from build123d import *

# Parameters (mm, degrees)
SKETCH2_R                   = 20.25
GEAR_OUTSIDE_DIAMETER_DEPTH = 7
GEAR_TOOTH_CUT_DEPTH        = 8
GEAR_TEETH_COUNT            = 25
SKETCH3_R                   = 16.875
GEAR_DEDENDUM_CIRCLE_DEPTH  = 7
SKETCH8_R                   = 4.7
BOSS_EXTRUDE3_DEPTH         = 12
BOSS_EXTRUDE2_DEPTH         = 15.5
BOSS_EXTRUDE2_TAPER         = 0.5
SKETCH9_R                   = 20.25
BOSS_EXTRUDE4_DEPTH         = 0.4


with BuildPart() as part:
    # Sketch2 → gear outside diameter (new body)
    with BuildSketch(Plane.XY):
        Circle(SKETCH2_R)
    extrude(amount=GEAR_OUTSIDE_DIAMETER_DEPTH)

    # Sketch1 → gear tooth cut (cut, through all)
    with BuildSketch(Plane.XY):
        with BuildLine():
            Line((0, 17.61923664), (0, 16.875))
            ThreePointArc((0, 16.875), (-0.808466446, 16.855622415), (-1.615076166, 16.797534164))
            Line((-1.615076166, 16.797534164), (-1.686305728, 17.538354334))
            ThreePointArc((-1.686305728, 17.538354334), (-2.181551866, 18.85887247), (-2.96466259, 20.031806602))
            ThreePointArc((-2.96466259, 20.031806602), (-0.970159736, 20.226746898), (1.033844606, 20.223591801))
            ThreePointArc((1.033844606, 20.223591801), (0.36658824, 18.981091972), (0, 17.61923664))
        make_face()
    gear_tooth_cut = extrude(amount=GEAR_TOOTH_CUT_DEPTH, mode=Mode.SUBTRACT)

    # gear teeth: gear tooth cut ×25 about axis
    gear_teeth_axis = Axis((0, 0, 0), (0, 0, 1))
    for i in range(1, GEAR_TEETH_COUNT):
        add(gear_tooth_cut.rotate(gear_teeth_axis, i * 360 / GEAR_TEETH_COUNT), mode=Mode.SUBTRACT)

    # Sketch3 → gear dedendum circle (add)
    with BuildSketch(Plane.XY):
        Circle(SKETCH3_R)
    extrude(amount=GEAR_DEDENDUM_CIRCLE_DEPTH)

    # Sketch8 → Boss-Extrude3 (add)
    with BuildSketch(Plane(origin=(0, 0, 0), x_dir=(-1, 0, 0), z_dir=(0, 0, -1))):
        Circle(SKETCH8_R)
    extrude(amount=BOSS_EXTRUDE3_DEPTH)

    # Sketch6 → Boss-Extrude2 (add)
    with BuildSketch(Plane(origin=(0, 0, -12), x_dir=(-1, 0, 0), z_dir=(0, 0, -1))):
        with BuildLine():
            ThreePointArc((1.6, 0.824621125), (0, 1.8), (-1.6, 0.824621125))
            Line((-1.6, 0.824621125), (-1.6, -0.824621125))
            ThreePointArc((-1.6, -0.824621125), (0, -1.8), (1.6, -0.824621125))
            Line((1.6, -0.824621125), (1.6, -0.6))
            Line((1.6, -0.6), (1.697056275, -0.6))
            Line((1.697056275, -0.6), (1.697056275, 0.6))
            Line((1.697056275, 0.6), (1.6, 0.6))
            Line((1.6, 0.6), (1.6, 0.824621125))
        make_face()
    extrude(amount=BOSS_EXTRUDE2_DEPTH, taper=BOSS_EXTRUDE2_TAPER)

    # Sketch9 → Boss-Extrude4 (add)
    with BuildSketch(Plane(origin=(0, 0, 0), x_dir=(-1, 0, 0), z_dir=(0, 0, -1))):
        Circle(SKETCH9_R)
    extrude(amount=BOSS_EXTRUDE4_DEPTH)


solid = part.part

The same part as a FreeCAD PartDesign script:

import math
import FreeCAD as App
import Part
import Sketcher
from FreeCAD import Vector

doc = App.newDocument("Part")
body = doc.addObject("PartDesign::Body", "Body")

sketch1 = body.newObject("Sketcher::SketchObject", "Sketch")
sketch1.AttachmentSupport = (doc.getObject("XY_Plane"), [""])
sketch1.MapMode = "FlatFace"
sketch1.addGeometry(Part.Circle(Vector(0, 0, 0), Vector(0, 0, 1), 20), False)
sketch1.addConstraint([
    Sketcher.Constraint("Coincident", 0, 3, -1, 1),
    Sketcher.Constraint("Diameter", 0, 40.5),
])
pad1 = body.newObject("PartDesign::Pad", "Pad")
pad1.Profile = sketch1
pad1.Length = 7

sketch2 = body.newObject("Sketcher::SketchObject", "Sketch001")
sketch2.AttachmentSupport = (doc.getObject("XY_Plane"), [""])
sketch2.MapMode = "FlatFace"
sketch2.addGeometry([
    Part.LineSegment(Vector(0, 16.9, 0), Vector(0, 17.6, 0)),
    Part.ArcOfCircle(Part.Circle(Vector(6.1, 16.7, 0), Vector(0, 0, 1), 6.1), math.radians(145), math.radians(172)),
    Part.ArcOfCircle(Part.Circle(Vector(0, 0, 0), Vector(0, 0, 1), 20.3), math.radians(87.07), math.radians(98.42)),
    Part.ArcOfCircle(Part.Circle(Vector(-7.7, 16.1, 0), Vector(0, 0, 1), 6.1), math.radians(14), math.radians(40)),
    Part.LineSegment(Vector(-1.7, 17.5, 0), Vector(-1.6, 16.8, 0)),
    Part.ArcOfCircle(Part.Circle(Vector(0, 0, 0), Vector(0, 0, 1), 16.9), math.radians(90), math.radians(95.49)),
], False)
sketch2.addConstraint([
    Sketcher.Constraint("Coincident", 0, 2, 1, 2),
    Sketcher.Constraint("Coincident", 1, 1, 2, 1),
    Sketcher.Constraint("Coincident", 2, 2, 3, 2),
    Sketcher.Constraint("Coincident", 3, 1, 4, 1),
    Sketcher.Constraint("Coincident", 4, 2, 5, 2),
    Sketcher.Constraint("Coincident", 5, 1, 0, 1),
    Sketcher.Constraint("Vertical", 0),
    Sketcher.Constraint("Coincident", 2, 3, -1, 1),
    Sketcher.Constraint("Coincident", 5, 3, -1, 1),
    Sketcher.Constraint("Equal", 1, 3),
    Sketcher.Constraint("PointOnObject", 0, 2, -2),
    Sketcher.Constraint("Radius", 2, 20.25),
    Sketcher.Constraint("Radius", 5, 16.875),
    Sketcher.Constraint("Radius", 1, 6.148644),
    Sketcher.Constraint("DistanceY", 1, 3, 1, 1, 3.511102),
    Sketcher.Constraint("DistanceY", 0, 1, 0, 2, 0.744237),
    Sketcher.Constraint("DistanceY", -1, 1, 3, 3, 16.053729),
    Sketcher.Constraint("DistanceX", 3, 3, 1, 3, 13.734439),
    Sketcher.Constraint("DistanceX", 3, 1, 1, 1, 2.72015),
    Sketcher.Constraint("DistanceX", 3, 1, 4, 2, 0.07123),
])
pocket1 = body.newObject("PartDesign::Pocket", "Pocket")
pocket1.Profile = sketch2
pocket1.Type = "ThroughAll"
pocket1.Reversed = True
doc.recompute()

polarpattern = body.newObject("PartDesign::PolarPattern", "PolarPattern")
polarpattern.Originals = [pocket1]
polarpattern.Axis = (doc.getObject("Z_Axis"), [""])
polarpattern.Angle = 360
polarpattern.Occurrences = 25
body.Tip = polarpattern

sketch3 = body.newObject("Sketcher::SketchObject", "Sketch002")
sketch3.AttachmentSupport = (doc.getObject("XY_Plane"), [""])
sketch3.MapMode = "FlatFace"
sketch3.addGeometry(Part.Circle(Vector(0, 0, 0), Vector(0, 0, 1), 17), False)
sketch3.addConstraint([
    Sketcher.Constraint("Coincident", 0, 3, -1, 1),
    Sketcher.Constraint("Diameter", 0, 33.75),
])
pad2 = body.newObject("PartDesign::Pad", "Pad001")
pad2.Profile = sketch3
pad2.Length = 7

sketch4 = body.newObject("Sketcher::SketchObject", "Sketch003")
sketch4.AttachmentSupport = (doc.getObject("XY_Plane"), [""])
sketch4.MapMode = "FlatFace"
sketch4.addGeometry(Part.Circle(Vector(0, 0, 0), Vector(0, 0, 1), 4.7), False)
sketch4.addConstraint([
    Sketcher.Constraint("Coincident", 0, 3, -1, 1),
    Sketcher.Constraint("Diameter", 0, 9.4),
])
pad3 = body.newObject("PartDesign::Pad", "Pad002")
pad3.Profile = sketch4
pad3.Length = 12
pad3.Reversed = True

sketch5 = body.newObject("Sketcher::SketchObject", "Sketch004")
sketch5.AttachmentSupport = (doc.getObject("XY_Plane"), [""])
sketch5.MapMode = "FlatFace"
sketch5.AttachmentOffset = App.Placement(Vector(0, 0, -12), App.Rotation())
sketch5.addGeometry([
    Part.ArcOfCircle(Part.Circle(Vector(0, 0, 0), Vector(0, 0, 1), 1.8), math.radians(27), math.radians(153)),
    Part.LineSegment(Vector(1.6, 0.82, 0), Vector(1.6, -0.82, 0)),
    Part.ArcOfCircle(Part.Circle(Vector(0, 0, 0), Vector(0, 0, 1), 1.8), math.radians(-153), math.radians(-27)),
    Part.LineSegment(Vector(-1.6, -0.82, 0), Vector(-1.6, -0.6, 0)),
    Part.LineSegment(Vector(-1.6, -0.6, 0), Vector(-1.7, -0.6, 0)),
    Part.LineSegment(Vector(-1.7, -0.6, 0), Vector(-1.7, 0.6, 0)),
    Part.LineSegment(Vector(-1.7, 0.6, 0), Vector(-1.6, 0.6, 0)),
    Part.LineSegment(Vector(-1.6, 0.6, 0), Vector(-1.6, 0.82, 0)),
], False)
sketch5.addConstraint([
    Sketcher.Constraint("Coincident", 0, 1, 1, 1),
    Sketcher.Constraint("Coincident", 1, 2, 2, 2),
    Sketcher.Constraint("Coincident", 2, 1, 3, 1),
    Sketcher.Constraint("Coincident", 3, 2, 4, 1),
    Sketcher.Constraint("Coincident", 4, 2, 5, 1),
    Sketcher.Constraint("Coincident", 5, 2, 6, 1),
    Sketcher.Constraint("Coincident", 6, 2, 7, 1),
    Sketcher.Constraint("Coincident", 7, 2, 0, 2),
    Sketcher.Constraint("Vertical", 1),
    Sketcher.Constraint("Vertical", 3),
    Sketcher.Constraint("Horizontal", 4),
    Sketcher.Constraint("Vertical", 5),
    Sketcher.Constraint("Horizontal", 6),
    Sketcher.Constraint("Vertical", 7),
    Sketcher.Constraint("Coincident", 0, 3, -1, 1),
    Sketcher.Constraint("Coincident", 2, 3, -1, 1),
    Sketcher.Constraint("Equal", 0, 2),
    Sketcher.Constraint("Symmetric", 3, 2, 6, 2, -1),
    Sketcher.Constraint("Horizontal", 1, 2, 2, 1),
    Sketcher.Constraint("Radius", 0, 1.8),
    Sketcher.Constraint("DistanceY", 5, 1, 5, 2, 1.2),
    Sketcher.Constraint("DistanceX", -1, 1, 0, 1, 1.6),
    Sketcher.Constraint("DistanceX", 4, 2, 4, 1, 0.097056),
])
pad4 = body.newObject("PartDesign::Pad", "Pad003")
pad4.Profile = sketch5
pad4.Length = 15.5
pad4.Reversed = True
pad4.TaperAngle = -0.5

sketch6 = body.newObject("Sketcher::SketchObject", "Sketch005")
sketch6.AttachmentSupport = (doc.getObject("XY_Plane"), [""])
sketch6.MapMode = "FlatFace"
sketch6.addGeometry(Part.Circle(Vector(0, 0, 0), Vector(0, 0, 1), 20), False)
sketch6.addConstraint([
    Sketcher.Constraint("Coincident", 0, 3, -1, 1),
    Sketcher.Constraint("Diameter", 0, 40.5),
])
pad5 = body.newObject("PartDesign::Pad", "Pad004")
pad5.Profile = sketch6
pad5.Length = 0.4
pad5.Reversed = True

doc.recompute()
